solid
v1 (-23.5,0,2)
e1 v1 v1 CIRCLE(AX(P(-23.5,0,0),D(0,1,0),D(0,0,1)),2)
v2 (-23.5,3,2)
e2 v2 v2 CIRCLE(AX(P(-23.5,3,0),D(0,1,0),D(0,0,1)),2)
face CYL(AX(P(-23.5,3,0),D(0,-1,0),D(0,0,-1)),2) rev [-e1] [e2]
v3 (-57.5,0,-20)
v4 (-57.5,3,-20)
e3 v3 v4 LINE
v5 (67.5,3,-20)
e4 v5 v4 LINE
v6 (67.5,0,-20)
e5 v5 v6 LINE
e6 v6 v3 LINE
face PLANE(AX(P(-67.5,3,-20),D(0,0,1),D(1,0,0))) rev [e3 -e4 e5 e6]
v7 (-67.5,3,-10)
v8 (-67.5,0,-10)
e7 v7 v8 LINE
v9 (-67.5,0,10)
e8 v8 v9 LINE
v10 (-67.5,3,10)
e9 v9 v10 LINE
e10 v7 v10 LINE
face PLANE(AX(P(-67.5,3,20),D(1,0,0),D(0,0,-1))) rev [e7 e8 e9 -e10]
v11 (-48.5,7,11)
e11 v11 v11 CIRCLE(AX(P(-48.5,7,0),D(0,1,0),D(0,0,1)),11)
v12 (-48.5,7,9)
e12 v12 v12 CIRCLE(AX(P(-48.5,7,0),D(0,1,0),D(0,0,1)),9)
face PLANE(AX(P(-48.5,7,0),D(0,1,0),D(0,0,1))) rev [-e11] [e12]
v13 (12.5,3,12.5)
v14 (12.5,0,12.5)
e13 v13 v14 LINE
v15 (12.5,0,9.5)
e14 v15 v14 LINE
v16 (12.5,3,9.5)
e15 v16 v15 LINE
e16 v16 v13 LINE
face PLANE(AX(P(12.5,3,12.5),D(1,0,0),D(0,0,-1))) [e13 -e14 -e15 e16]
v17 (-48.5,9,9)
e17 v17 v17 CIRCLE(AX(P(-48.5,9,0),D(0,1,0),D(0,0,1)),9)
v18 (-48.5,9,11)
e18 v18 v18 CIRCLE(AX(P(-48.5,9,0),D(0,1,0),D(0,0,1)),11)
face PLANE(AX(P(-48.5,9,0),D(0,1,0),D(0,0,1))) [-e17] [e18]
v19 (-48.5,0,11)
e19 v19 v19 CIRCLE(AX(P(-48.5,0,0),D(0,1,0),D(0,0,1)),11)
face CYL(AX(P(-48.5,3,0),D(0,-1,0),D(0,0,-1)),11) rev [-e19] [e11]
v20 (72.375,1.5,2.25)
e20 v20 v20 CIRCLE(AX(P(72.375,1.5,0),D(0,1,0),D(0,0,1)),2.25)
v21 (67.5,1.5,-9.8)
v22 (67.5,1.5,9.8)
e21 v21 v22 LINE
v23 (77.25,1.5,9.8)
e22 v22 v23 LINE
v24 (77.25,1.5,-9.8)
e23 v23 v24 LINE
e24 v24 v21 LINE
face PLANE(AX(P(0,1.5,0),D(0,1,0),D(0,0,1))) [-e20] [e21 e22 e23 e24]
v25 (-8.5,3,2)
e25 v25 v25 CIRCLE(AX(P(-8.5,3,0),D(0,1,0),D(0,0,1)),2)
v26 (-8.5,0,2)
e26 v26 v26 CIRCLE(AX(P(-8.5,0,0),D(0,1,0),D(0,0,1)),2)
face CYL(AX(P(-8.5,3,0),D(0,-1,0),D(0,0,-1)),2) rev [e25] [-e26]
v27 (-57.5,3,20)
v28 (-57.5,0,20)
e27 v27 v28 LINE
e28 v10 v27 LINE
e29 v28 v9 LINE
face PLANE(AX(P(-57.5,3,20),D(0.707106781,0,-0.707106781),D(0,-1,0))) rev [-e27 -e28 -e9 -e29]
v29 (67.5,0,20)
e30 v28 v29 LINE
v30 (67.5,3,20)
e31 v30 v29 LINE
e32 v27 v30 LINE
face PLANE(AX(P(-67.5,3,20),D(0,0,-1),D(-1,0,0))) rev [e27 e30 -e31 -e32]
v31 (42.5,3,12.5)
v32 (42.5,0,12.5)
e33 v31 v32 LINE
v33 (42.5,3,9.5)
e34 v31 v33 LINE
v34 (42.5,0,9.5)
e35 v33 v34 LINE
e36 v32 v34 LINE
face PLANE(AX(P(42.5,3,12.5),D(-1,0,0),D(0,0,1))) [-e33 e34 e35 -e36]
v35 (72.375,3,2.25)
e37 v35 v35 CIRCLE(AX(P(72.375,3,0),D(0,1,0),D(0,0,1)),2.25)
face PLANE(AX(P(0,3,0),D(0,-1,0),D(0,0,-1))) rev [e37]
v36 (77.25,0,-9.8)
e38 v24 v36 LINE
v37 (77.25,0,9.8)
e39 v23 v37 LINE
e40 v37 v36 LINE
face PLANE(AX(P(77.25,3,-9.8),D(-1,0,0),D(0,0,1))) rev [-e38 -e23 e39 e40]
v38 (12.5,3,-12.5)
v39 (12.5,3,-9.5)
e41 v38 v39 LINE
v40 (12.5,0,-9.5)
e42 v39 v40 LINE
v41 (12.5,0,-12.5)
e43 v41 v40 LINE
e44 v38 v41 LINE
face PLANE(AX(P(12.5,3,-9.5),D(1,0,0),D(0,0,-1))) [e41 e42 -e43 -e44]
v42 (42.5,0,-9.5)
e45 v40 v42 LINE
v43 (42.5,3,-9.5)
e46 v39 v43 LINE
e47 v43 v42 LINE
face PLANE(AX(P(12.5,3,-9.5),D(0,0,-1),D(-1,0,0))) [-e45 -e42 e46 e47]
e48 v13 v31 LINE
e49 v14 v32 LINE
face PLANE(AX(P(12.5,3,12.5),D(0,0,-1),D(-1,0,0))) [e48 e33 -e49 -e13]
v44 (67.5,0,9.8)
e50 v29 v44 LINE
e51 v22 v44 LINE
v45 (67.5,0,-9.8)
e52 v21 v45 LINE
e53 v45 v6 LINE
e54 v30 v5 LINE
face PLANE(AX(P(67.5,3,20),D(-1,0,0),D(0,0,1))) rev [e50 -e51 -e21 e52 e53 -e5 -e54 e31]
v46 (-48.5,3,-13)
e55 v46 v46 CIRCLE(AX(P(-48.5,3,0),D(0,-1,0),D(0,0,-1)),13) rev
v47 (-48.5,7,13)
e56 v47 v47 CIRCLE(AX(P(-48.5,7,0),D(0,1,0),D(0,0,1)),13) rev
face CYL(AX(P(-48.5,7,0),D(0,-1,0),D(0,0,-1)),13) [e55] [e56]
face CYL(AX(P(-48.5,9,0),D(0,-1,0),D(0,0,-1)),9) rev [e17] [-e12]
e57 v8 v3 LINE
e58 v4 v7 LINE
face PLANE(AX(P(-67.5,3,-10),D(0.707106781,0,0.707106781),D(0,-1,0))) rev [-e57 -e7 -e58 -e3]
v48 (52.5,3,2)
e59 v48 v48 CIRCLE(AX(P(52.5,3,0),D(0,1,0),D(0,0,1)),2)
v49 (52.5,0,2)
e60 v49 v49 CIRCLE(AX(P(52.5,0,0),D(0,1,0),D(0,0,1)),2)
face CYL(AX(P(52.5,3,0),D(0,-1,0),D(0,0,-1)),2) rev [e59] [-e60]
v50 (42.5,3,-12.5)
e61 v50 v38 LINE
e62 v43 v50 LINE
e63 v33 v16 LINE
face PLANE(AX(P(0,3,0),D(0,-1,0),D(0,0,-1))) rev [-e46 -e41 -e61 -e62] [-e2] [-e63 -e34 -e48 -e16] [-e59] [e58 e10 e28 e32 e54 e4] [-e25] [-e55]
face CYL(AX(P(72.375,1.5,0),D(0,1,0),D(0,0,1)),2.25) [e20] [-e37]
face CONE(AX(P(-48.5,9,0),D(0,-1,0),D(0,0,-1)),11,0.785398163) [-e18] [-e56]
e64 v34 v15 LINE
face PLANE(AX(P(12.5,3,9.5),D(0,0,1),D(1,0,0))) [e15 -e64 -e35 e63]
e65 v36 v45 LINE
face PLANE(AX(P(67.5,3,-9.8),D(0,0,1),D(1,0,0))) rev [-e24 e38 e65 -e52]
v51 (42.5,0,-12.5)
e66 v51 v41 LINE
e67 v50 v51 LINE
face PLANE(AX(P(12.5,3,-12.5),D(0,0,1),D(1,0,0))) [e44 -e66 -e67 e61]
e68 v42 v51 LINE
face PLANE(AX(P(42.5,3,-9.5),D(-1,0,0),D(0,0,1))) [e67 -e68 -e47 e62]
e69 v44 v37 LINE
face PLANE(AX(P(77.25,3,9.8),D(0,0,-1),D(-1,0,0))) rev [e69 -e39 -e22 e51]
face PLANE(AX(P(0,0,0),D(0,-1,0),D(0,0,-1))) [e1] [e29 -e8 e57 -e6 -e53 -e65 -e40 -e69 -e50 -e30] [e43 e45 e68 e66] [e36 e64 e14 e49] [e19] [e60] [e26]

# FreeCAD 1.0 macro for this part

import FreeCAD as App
import Part
import Sketcher
Q = App.Units.Quantity


def edges_at(feature, points):
    """Names of the edges that pass closest to the given points."""
    edges = feature.Shape.Edges
    near = lambda p: min(range(len(edges)), key=lambda i: edges[i].distToShape(Part.Vertex(*p))[0])
    return sorted({f"Edge{near(p) + 1}" for p in points})


def add_polygon(sketch, points):
    """Adds a closed chain of lines whose ends are joined by coincident constraints."""
    first, n = sketch.GeometryCount, len(points)
    for a, b in zip(points, points[1:] + points[:1]):
        sketch.addGeometry(Part.LineSegment(App.Vector(*a, 0), App.Vector(*b, 0)), False)
    for i in range(n):
        sketch.addConstraint(Sketcher.Constraint("Coincident", first + i, 2, first + (i + 1) % n, 1))

doc = App.newDocument("Part")
body = doc.addObject("PartDesign::Body", "Body")

sketch1 = body.newObject("Sketcher::SketchObject", "Sketch")
sketch1.AttachmentSupport = (doc.getObject("XZ_Plane"), [""])
sketch1.MapMode = "FlatFace"
add_polygon(sketch1, [(-67.5, 20), (67.5, 20), (67.5, 9.8), (77.25, 9.8), (77.25, -9.8), (67.5, -9.8), (67.5, -20), (-67.5, -20)])
add_polygon(sketch1, [(42.5, 12.5), (12.5, 12.5), (12.5, 9.5), (42.5, 9.5)])
sketch1.addGeometry(Part.Circle(App.Vector(-48.5, 0, 0), App.Vector(0, 0, 1), 11), False)
sketch1.addGeometry(Part.Circle(App.Vector(-23.5, 0, 0), App.Vector(0, 0, 1), 2), False)
sketch1.addGeometry(Part.Circle(App.Vector(-8.5, 0, 0), App.Vector(0, 0, 1), 2), False)
sketch1.addGeometry(Part.Circle(App.Vector(52.5, 0, 0), App.Vector(0, 0, 1), 2), False)
add_polygon(sketch1, [(42.5, -9.5), (12.5, -9.5), (12.5, -12.5), (42.5, -12.5)])
sketch1.addConstraint([
    Sketcher.Constraint("Horizontal", 0),
    Sketcher.Constraint("Vertical", 1),
    Sketcher.Constraint("Horizontal", 2),
    Sketcher.Constraint("Vertical", 3),
    Sketcher.Constraint("Horizontal", 4),
    Sketcher.Constraint("Vertical", 5),
    Sketcher.Constraint("Horizontal", 6),
    Sketcher.Constraint("Vertical", 7),
    Sketcher.Constraint("Horizontal", 8),
    Sketcher.Constraint("Vertical", 9),
    Sketcher.Constraint("Horizontal", 10),
    Sketcher.Constraint("Vertical", 11),
    Sketcher.Constraint("Horizontal", 16),
    Sketcher.Constraint("Vertical", 17),
    Sketcher.Constraint("Horizontal", 18),
    Sketcher.Constraint("Vertical", 19),
    Sketcher.Constraint("Equal", 13, 14),
    Sketcher.Constraint("Equal", 14, 15),
    Sketcher.Constraint("Symmetric", 0, 2, 6, 2, -1, 1),
    Sketcher.Constraint("Symmetric", 1, 2, 4, 2, -1),
    Sketcher.Constraint("Symmetric", 9, 2, 16, 2, -1),
    Sketcher.Constraint("Symmetric", 11, 2, 18, 2, -1),
    Sketcher.Constraint("PointOnObject", 12, 3, -1),
    Sketcher.Constraint("PointOnObject", 13, 3, -1),
    Sketcher.Constraint("PointOnObject", 14, 3, -1),
    Sketcher.Constraint("PointOnObject", 15, 3, -1),
    Sketcher.Constraint("Diameter", 12, Q("22 mm")),
    Sketcher.Constraint("Diameter", 13, Q("4 mm")),
    Sketcher.Constraint("DistanceX", 0, 1, 0, 2, Q("135 mm")),
    Sketcher.Constraint("DistanceX", 8, 2, 8, 1, Q("30 mm")),
    Sketcher.Constraint("DistanceY", 7, 1, 7, 2, Q("40 mm")),
    Sketcher.Constraint("DistanceY", 9, 2, 9, 1, Q("3 mm")),
    Sketcher.Constraint("DistanceY", 1, 2, 1, 1, Q("10.2 mm")),
    Sketcher.Constraint("DistanceX", 12, 3, 13, 3, Q("25 mm")),
    Sketcher.Constraint("DistanceX", 13, 3, 14, 3, Q("15 mm")),
    Sketcher.Constraint("DistanceX", 14, 3, 15, 3, Q("61 mm")),
    Sketcher.Constraint("DistanceX", 15, 3, 0, 2, Q("15 mm")),
    Sketcher.Constraint("DistanceX", 14, 3, 8, 2, Q("21 mm")),
    Sketcher.Constraint("DistanceY", 16, 2, 9, 2, Q("19 mm")),
    Sketcher.Constraint("DistanceX", 2, 1, 2, 2, Q("9.75 mm")),
])
pad1 = body.newObject("PartDesign::Pad", "Pad")
pad1.Profile = sketch1
pad1.Length = 3
pad1.Reversed = True

sketch2 = body.newObject("Sketcher::SketchObject", "Sketch001")
sketch2.AttachmentSupport = (doc.getObject("XZ_Plane"), [""])
sketch2.MapMode = "FlatFace"
sketch2.AttachmentOffset = App.Placement(App.Vector(0, 0, -3), App.Rotation())
sketch2.addGeometry([
    Part.Circle(App.Vector(-48.5, 0, 0), App.Vector(0, 0, 1), 13),
    Part.Circle(App.Vector(-48.5, 0, 0), App.Vector(0, 0, 1), 11),
], False)
sketch2.addConstraint([
    Sketcher.Constraint("Coincident", 1, 3, 0, 3),
    Sketcher.Constraint("PointOnObject", 0, 3, -1),
    Sketcher.Constraint("Diameter", 0, Q("26 mm")),
    Sketcher.Constraint("Diameter", 1, Q("22 mm")),
    Sketcher.Constraint("DistanceX", 0, 3, -1, 1, Q("48.5 mm")),
])
pad2 = body.newObject("PartDesign::Pad", "Pad001")
pad2.Profile = sketch2
pad2.Length = 4
pad2.Reversed = True

sketch3 = body.newObject("Sketcher::SketchObject", "Sketch002")
sketch3.AttachmentSupport = (doc.getObject("XZ_Plane"), [""])
sketch3.MapMode = "FlatFace"
sketch3.AttachmentOffset = App.Placement(App.Vector(0, 0, -7), App.Rotation())
sketch3.addGeometry([
    Part.Circle(App.Vector(-48.5, 0, 0), App.Vector(0, 0, 1), 13),
    Part.Circle(App.Vector(-48.5, 0, 0), App.Vector(0, 0, 1), 9),
], False)
sketch3.addConstraint([
    Sketcher.Constraint("Coincident", 1, 3, 0, 3),
    Sketcher.Constraint("PointOnObject", 0, 3, -1),
    Sketcher.Constraint("Diameter", 0, Q("26 mm")),
    Sketcher.Constraint("Diameter", 1, Q("18 mm")),
    Sketcher.Constraint("DistanceX", 0, 3, -1, 1, Q("48.5 mm")),
])
pad3 = body.newObject("PartDesign::Pad", "Pad002")
pad3.Profile = sketch3
pad3.Length = 2
pad3.Reversed = True
doc.recompute()

chamfer = body.newObject("PartDesign::Chamfer", "Chamfer")
chamfer.Base = (pad3, edges_at(pad3, [(-48.5, 9, 13)]))
chamfer.Size = 2
doc.recompute()

chamfer2 = body.newObject("PartDesign::Chamfer", "Chamfer001")
chamfer2.Base = (chamfer, edges_at(chamfer, [(-67.5, 1.5, 20), (-67.5, 1.5, -20)]))
chamfer2.Size = 10

sketch4 = body.newObject("Sketcher::SketchObject", "Sketch003")
sketch4.AttachmentSupport = (doc.getObject("XZ_Plane"), [""])
sketch4.MapMode = "FlatFace"
sketch4.AttachmentOffset = App.Placement(App.Vector(0, 0, -3), App.Rotation())
add_polygon(sketch4, [(67.5, -9.8), (67.5, 9.8), (77.25, 9.8), (77.25, -9.8)])
sketch4.addGeometry(Part.Circle(App.Vector(72.375, 0, 0), App.Vector(0, 0, 1), 2.25), False)
sketch4.addConstraint([
    Sketcher.Constraint("Vertical", 0),
    Sketcher.Constraint("Horizontal", 1),
    Sketcher.Constraint("Vertical", 2),
    Sketcher.Constraint("Horizontal", 3),
    Sketcher.Constraint("PointOnObject", 4, 3, -1),
    Sketcher.Constraint("Diameter", 4, Q("4.5 mm")),
    Sketcher.Constraint("DistanceY", 0, 1, 0, 2, Q("19.6 mm")),
    Sketcher.Constraint("DistanceX", 1, 1, 1, 2, Q("9.75 mm")),
    Sketcher.Constraint("DistanceX", -1, 1, 0, 2, Q("67.5 mm")),
    Sketcher.Constraint("DistanceY", -1, 1, 0, 2, Q("9.8 mm")),
    Sketcher.Constraint("DistanceX", -1, 1, 4, 3, Q("72.375 mm")),
])
pocket1 = body.newObject("PartDesign::Pocket", "Pocket")
pocket1.Profile = sketch4
pocket1.Length = 1.5
pocket1.Reversed = True

doc.recompute()
